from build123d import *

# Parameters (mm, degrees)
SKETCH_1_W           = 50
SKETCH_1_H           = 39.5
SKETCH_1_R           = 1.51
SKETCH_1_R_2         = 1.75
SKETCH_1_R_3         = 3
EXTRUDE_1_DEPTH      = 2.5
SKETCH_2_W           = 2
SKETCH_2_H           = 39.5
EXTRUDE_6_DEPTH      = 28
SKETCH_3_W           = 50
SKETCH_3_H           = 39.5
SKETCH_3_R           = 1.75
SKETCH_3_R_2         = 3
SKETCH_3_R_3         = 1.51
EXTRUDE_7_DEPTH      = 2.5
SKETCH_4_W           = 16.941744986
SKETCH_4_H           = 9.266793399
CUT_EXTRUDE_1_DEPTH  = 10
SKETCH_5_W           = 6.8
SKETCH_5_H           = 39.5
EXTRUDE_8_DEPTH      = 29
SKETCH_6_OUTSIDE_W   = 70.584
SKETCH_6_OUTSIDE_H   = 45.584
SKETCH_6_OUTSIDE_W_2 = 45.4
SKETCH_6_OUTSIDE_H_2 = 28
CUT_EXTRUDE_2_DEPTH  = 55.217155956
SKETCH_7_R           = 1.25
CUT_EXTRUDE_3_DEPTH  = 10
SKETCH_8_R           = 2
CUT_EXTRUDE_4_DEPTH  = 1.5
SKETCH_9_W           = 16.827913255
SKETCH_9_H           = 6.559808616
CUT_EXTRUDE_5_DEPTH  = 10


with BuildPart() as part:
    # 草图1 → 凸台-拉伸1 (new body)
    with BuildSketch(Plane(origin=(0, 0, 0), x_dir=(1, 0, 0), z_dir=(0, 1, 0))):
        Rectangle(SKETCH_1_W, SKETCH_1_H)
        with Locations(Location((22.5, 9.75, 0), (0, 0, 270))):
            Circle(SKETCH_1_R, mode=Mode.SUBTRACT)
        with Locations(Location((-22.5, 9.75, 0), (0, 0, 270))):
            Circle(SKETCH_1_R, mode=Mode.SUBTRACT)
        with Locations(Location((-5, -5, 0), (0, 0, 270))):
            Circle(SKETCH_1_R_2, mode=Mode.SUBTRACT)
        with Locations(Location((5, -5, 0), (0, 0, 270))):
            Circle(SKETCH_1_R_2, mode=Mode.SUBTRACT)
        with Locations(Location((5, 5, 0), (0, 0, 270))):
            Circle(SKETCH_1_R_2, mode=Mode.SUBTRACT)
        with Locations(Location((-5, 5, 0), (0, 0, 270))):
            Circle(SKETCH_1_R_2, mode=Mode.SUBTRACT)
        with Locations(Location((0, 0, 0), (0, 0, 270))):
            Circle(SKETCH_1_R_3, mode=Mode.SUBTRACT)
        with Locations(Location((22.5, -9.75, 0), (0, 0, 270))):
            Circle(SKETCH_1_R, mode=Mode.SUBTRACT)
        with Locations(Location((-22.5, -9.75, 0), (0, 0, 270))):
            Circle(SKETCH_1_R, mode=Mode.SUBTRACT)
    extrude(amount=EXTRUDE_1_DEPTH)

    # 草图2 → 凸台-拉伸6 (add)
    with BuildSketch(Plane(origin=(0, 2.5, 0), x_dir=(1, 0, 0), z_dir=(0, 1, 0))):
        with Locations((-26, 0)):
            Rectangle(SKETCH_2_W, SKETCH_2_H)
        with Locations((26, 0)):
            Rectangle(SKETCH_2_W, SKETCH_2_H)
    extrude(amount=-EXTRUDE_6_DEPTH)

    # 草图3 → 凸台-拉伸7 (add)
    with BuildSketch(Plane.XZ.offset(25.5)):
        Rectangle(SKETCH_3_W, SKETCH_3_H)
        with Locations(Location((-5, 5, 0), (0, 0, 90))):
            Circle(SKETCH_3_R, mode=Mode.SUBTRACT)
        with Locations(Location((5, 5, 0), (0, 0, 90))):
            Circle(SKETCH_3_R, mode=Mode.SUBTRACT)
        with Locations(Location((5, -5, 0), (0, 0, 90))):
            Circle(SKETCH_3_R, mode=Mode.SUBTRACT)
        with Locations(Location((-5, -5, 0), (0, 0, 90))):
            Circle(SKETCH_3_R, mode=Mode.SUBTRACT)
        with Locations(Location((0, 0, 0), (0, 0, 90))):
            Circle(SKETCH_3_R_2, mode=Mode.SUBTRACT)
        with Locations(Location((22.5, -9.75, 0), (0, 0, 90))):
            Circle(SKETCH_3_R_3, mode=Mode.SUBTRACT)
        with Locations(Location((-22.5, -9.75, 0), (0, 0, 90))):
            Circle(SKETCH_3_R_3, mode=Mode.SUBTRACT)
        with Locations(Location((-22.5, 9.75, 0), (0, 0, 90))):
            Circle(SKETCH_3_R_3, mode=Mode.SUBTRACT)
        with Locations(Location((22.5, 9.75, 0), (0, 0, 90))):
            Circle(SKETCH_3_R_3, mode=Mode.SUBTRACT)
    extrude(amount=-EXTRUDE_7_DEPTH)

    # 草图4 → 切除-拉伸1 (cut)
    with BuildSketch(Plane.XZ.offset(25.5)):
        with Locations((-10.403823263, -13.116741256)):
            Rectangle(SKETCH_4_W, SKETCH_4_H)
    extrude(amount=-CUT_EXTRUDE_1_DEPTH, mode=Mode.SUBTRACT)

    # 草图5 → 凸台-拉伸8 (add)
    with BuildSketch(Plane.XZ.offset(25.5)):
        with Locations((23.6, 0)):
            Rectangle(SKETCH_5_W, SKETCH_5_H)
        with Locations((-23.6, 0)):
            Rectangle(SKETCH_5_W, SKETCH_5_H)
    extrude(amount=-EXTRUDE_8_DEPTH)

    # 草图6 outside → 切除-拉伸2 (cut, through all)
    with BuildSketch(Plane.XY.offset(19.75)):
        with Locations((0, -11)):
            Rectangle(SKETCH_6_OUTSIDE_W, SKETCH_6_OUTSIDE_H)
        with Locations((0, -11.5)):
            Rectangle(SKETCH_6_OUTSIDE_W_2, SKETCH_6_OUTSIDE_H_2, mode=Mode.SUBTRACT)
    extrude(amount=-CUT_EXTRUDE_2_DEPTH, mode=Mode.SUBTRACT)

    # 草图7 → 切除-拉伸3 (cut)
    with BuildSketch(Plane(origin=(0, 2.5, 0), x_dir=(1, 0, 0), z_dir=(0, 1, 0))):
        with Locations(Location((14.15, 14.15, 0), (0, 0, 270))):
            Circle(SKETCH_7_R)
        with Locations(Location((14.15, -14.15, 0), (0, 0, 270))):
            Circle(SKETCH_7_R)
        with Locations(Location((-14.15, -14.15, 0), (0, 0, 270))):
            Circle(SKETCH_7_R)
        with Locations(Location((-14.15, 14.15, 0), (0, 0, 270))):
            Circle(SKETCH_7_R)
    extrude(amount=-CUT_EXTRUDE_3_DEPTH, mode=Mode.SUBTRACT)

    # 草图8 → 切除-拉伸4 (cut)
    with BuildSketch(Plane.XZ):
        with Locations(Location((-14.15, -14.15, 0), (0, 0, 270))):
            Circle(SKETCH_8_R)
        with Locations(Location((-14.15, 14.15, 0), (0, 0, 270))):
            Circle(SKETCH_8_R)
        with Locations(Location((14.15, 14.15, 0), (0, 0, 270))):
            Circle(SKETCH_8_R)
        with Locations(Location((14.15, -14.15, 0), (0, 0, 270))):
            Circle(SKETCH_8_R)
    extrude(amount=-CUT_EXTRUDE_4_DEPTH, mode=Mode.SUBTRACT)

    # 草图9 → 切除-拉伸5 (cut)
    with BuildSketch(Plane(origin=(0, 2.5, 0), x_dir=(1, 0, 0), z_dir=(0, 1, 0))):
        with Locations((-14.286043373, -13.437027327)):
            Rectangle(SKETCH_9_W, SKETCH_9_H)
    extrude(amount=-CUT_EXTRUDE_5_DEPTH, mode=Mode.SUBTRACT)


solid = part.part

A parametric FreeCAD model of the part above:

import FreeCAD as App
import Part
import Sketcher


def add_polygon(sketch, points):
    """Adds a closed chain of lines whose ends are joined by coincident constraints."""
    first, n = sketch.GeometryCount, len(points)
    for a, b in zip(points, points[1:] + points[:1]):
        sketch.addGeometry(Part.LineSegment(App.Vector(*a, 0), App.Vector(*b, 0)), False)
    for i in range(n):
        sketch.addConstraint(Sketcher.Constraint("Coincident", first + i, 2, first + (i + 1) % n, 1))

doc = App.newDocument("Part")
params = doc.addObject("Spreadsheet::Sheet", "Params")
for row, (alias, value) in enumerate([
    ("sketch1_diameter", "6 mm"),
    ("sketch1_diameter2", "3.5 mm"),
    ("sketch1_diameter3", "3.02 mm"),
    ("sketch1_width", "50 mm"),
    ("sketch1_height", "39.5 mm"),
    ("pad1_length", "2.5 mm"),
    ("sketch2_width", "2 mm"),
    ("sketch2_height", "39.5 mm"),
    ("pad2_length", "28 mm"),
    ("sketch3_diameter", "6 mm"),
    ("sketch3_diameter2", "3.5 mm"),
    ("sketch3_diameter3", "3.02 mm"),
    ("sketch3_width", "50 mm"),
    ("sketch3_height", "39.5 mm"),
    ("pad3_length", "2.5 mm"),
    ("pocket1_length", "10 mm"),
    ("sketch5_width", "6.8 mm"),
    ("sketch5_height", "39.5 mm"),
    ("pad4_length", "29 mm"),
    ("sketch6_height", "28 mm"),
    ("sketch6_width", "45.4 mm"),
    ("sketch7_diameter", "2.5 mm"),
    ("pocket3_length", "10 mm"),
    ("sketch8_diameter", "4 mm"),
    ("pocket4_length", "1.5 mm"),
    ("pocket5_length", "10 mm"),
], start=1):
    params.set(f"A{row}", alias)
    params.set(f"B{row}", "=" + value)
    params.setAlias(f"B{row}", alias)

body = doc.addObject("PartDesign::Body", "Body")

# Sketch on XZ plane
sketch1 = body.newObject("Sketcher::SketchObject", "Sketch")
sketch1.AttachmentSupport = (doc.getObject("XZ_Plane"), [""])
sketch1.MapMode = "FlatFace"
add_polygon(sketch1, [(-25, -19.75), (-25, 19.75), (25, 19.75), (25, -19.75)])  # lines 0-3
sketch1.addGeometry(Part.Circle(App.Vector(-22.5, 9.75, 0), App.Vector(0, 0, 1), 1.51), False)  # 4
sketch1.addGeometry(Part.Circle(App.Vector(-5, 5, 0), App.Vector(0, 0, 1), 1.75), False)  # 5
sketch1.addGeometry(Part.Circle(App.Vector(22.5, 9.75, 0), App.Vector(0, 0, 1), 1.51), False)  # 6
sketch1.addGeometry(Part.Circle(App.Vector(5, 5, 0), App.Vector(0, 0, 1), 1.75), False)  # 7
sketch1.addGeometry(Part.Circle(App.Vector(-5, -5, 0), App.Vector(0, 0, 1), 1.75), False)  # 8
sketch1.addGeometry(Part.Circle(App.Vector(-22.5, -9.75, 0), App.Vector(0, 0, 1), 1.51), False)  # 9
sketch1.addGeometry(Part.Circle(App.Vector(0, 0, 0), App.Vector(0, 0, 1), 3), False)  # 10
sketch1.addGeometry(Part.Circle(App.Vector(5, -5, 0), App.Vector(0, 0, 1), 1.75), False)  # 11
sketch1.addGeometry(Part.Circle(App.Vector(22.5, -9.75, 0), App.Vector(0, 0, 1), 1.51), False)  # 12
sketch1.addConstraint(Sketcher.Constraint("Vertical", 0))
sketch1.addConstraint(Sketcher.Constraint("Horizontal", 1))
sketch1.addConstraint(Sketcher.Constraint("Vertical", 2))
sketch1.addConstraint(Sketcher.Constraint("Horizontal", 3))
sketch1.addConstraint(Sketcher.Constraint("Coincident", 10, 3, -1, 1))
sketch1.addConstraint(Sketcher.Constraint("Equal", 4, 6))
sketch1.addConstraint(Sketcher.Constraint("Equal", 5, 7))
sketch1.addConstraint(Sketcher.Constraint("Equal", 7, 8))
sketch1.addConstraint(Sketcher.Constraint("Equal", 6, 9))
sketch1.addConstraint(Sketcher.Constraint("Equal", 8, 11))
sketch1.addConstraint(Sketcher.Constraint("Equal", 9, 12))
sketch1.addConstraint(Sketcher.Constraint("Symmetric", 7, 3, 8, 3, -1, 1))
sketch1.addConstraint(Sketcher.Constraint("Symmetric", 6, 3, 9, 3, -1, 1))
sketch1.addConstraint(Sketcher.Constraint("Symmetric", 5, 3, 11, 3, -1, 1))
sketch1.addConstraint(Sketcher.Constraint("Symmetric", 4, 3, 12, 3, -1, 1))
sketch1.addConstraint(Sketcher.Constraint("Symmetric", 0, 2, 2, 2, -1, 1))
sketch1.addConstraint(Sketcher.Constraint("Symmetric", 4, 3, 6, 3, -2))
sketch1.addConstraint(Sketcher.Constraint("Symmetric", 5, 3, 7, 3, -2))
sketch1.addConstraint(Sketcher.Constraint("Diameter", 10, 6.0))
sketch1.addConstraint(Sketcher.Constraint("Diameter", 5, 3.5))
sketch1.addConstraint(Sketcher.Constraint("Diameter", 4, 3.02))
sketch1.addConstraint(Sketcher.Constraint("DistanceX", 1, 1, 1, 2, 50.0))
sketch1.addConstraint(Sketcher.Constraint("DistanceY", 0, 1, 0, 2, 39.5))
sketch1.addConstraint(Sketcher.Constraint("DistanceX", 5, 3, -1, 1, 5.0))
sketch1.addConstraint(Sketcher.Constraint("DistanceY", -1, 1, 5, 3, 5.0))
sketch1.addConstraint(Sketcher.Constraint("DistanceX", 4, 3, 6, 3, 45.0))
sketch1.addConstraint(Sketcher.Constraint("DistanceY", 4, 3, 0, 2, 10.0))
sketch1.setExpression("Constraints[22]", "Params.sketch1_diameter")
sketch1.setExpression("Constraints[23]", "Params.sketch1_diameter2")
sketch1.setExpression("Constraints[24]", "Params.sketch1_diameter3")
sketch1.setExpression("Constraints[25]", "Params.sketch1_width")
sketch1.setExpression("Constraints[26]", "Params.sketch1_height")
pad1 = body.newObject("PartDesign::Pad", "Pad")
pad1.Profile = sketch1
pad1.setExpression("Length", "Params.pad1_length")
pad1.Reversed = True

# Sketch on XZ plane
sketch2 = body.newObject("Sketcher::SketchObject", "Sketch001")
sketch2.AttachmentSupport = (doc.getObject("XZ_Plane"), [""])
sketch2.MapMode = "FlatFace"
sketch2.AttachmentOffset = App.Placement(App.Vector(0, 0, -2.5), App.Rotation())
add_polygon(sketch2, [(-27, -19.75), (-27, 19.75), (-25, 19.75), (-25, -19.75)])  # lines 0-3
add_polygon(sketch2, [(25, -19.75), (25, 19.75), (27, 19.75), (27, -19.75)])  # lines 4-7
sketch2.addConstraint(Sketcher.Constraint("Vertical", 0))
sketch2.addConstraint(Sketcher.Constraint("Horizontal", 1))
sketch2.addConstraint(Sketcher.Constraint("Vertical", 2))
sketch2.addConstraint(Sketcher.Constraint("Horizontal", 3))
sketch2.addConstraint(Sketcher.Constraint("Vertical", 4))
sketch2.addConstraint(Sketcher.Constraint("Horizontal", 5))
sketch2.addConstraint(Sketcher.Constraint("Vertical", 6))
sketch2.addConstraint(Sketcher.Constraint("Horizontal", 7))
sketch2.addConstraint(Sketcher.Constraint("Symmetric", 2, 2, 4, 2, -1, 1))
sketch2.addConstraint(Sketcher.Constraint("Symmetric", 0, 2, 6, 2, -1, 1))
sketch2.addConstraint(Sketcher.Constraint("Horizontal", 1, 2, 4, 2))
sketch2.addConstraint(Sketcher.Constraint("DistanceX", 1, 1, 1, 2, 2.0))
sketch2.addConstraint(Sketcher.Constraint("DistanceY", 0, 1, 0, 2, 39.5))
sketch2.addConstraint(Sketcher.Constraint("DistanceX", 0, 2, -1, 1, 27.0))
sketch2.setExpression("Constraints[19]", "Params.sketch2_width")
sketch2.setExpression("Constraints[20]", "Params.sketch2_height")
pad2 = body.newObject("PartDesign::Pad", "Pad001")
pad2.Profile = sketch2
pad2.setExpression("Length", "Params.pad2_length")

# Sketch on XZ plane
sketch3 = body.newObject("Sketcher::SketchObject", "Sketch002")
sketch3.AttachmentSupport = (doc.getObject("XZ_Plane"), [""])
sketch3.MapMode = "FlatFace"
sketch3.AttachmentOffset = App.Placement(App.Vector(0, 0, 25.5), App.Rotation())
add_polygon(sketch3, [(-25, 19.75), (-25, -19.75), (25, -19.75), (25, 19.75)])  # lines 0-3
sketch3.addGeometry(Part.Circle(App.Vector(-22.5, -9.75, 0), App.Vector(0, 0, 1), 1.51), False)  # 4
sketch3.addGeometry(Part.Circle(App.Vector(-5, -5, 0), App.Vector(0, 0, 1), 1.75), False)  # 5
sketch3.addGeometry(Part.Circle(App.Vector(22.5, -9.75, 0), App.Vector(0, 0, 1), 1.51), False)  # 6
sketch3.addGeometry(Part.Circle(App.Vector(5, -5, 0), App.Vector(0, 0, 1), 1.75), False)  # 7
sketch3.addGeometry(Part.Circle(App.Vector(-5, 5, 0), App.Vector(0, 0, 1), 1.75), False)  # 8
sketch3.addGeometry(Part.Circle(App.Vector(-22.5, 9.75, 0), App.Vector(0, 0, 1), 1.51), False)  # 9
sketch3.addGeometry(Part.Circle(App.Vector(0, 0, 0), App.Vector(0, 0, 1), 3), False)  # 10
sketch3.addGeometry(Part.Circle(App.Vector(5, 5, 0), App.Vector(0, 0, 1), 1.75), False)  # 11
sketch3.addGeometry(Part.Circle(App.Vector(22.5, 9.75, 0), App.Vector(0, 0, 1), 1.51), False)  # 12
sketch3.addConstraint(Sketcher.Constraint("Vertical", 0))
sketch3.addConstraint(Sketcher.Constraint("Horizontal", 1))
sketch3.addConstraint(Sketcher.Constraint("Vertical", 2))
sketch3.addConstraint(Sketcher.Constraint("Horizontal", 3))
sketch3.addConstraint(Sketcher.Constraint("Coincident", 10, 3, -1, 1))
sketch3.addConstraint(Sketcher.Constraint("Equal", 4, 6))
sketch3.addConstraint(Sketcher.Constraint("Equal", 5, 7))
sketch3.addConstraint(Sketcher.Constraint("Equal", 7, 8))
sketch3.addConstraint(Sketcher.Constraint("Equal", 6, 9))
sketch3.addConstraint(Sketcher.Constraint("Equal", 8, 11))
sketch3.addConstraint(Sketcher.Constraint("Equal", 9, 12))
sketch3.addConstraint(Sketcher.Constraint("Symmetric", 7, 3, 8, 3, -1, 1))
sketch3.addConstraint(Sketcher.Constraint("Symmetric", 6, 3, 9, 3, -1, 1))
sketch3.addConstraint(Sketcher.Constraint("Symmetric", 5, 3, 11, 3, -1, 1))
sketch3.addConstraint(Sketcher.Constraint("Symmetric", 4, 3, 12, 3, -1, 1))
sketch3.addConstraint(Sketcher.Constraint("Symmetric", 0, 2, 2, 2, -1, 1))
sketch3.addConstraint(Sketcher.Constraint("Symmetric", 4, 3, 6, 3, -2))
sketch3.addConstraint(Sketcher.Constraint("Symmetric", 5, 3, 7, 3, -2))
sketch3.addConstraint(Sketcher.Constraint("Diameter", 10, 6.0))
sketch3.addConstraint(Sketcher.Constraint("Diameter", 5, 3.5))
sketch3.addConstraint(Sketcher.Constraint("Diameter", 4, 3.02))
sketch3.addConstraint(Sketcher.Constraint("DistanceX", 1, 1, 1, 2, 50.0))
sketch3.addConstraint(Sketcher.Constraint("DistanceY", 0, 2, 0, 1, 39.5))
sketch3.addConstraint(Sketcher.Constraint("DistanceX", 5, 3, -1, 1, 5.0))
sketch3.addConstraint(Sketcher.Constraint("DistanceY", 5, 3, -1, 1, 5.0))
sketch3.addConstraint(Sketcher.Constraint("DistanceX", 4, 3, 6, 3, 45.0))
sketch3.addConstraint(Sketcher.Constraint("DistanceY", 0, 2, 4, 3, 10.0))
sketch3.setExpression("Constraints[22]", "Params.sketch3_diameter")
sketch3.setExpression("Constraints[23]", "Params.sketch3_diameter2")
sketch3.setExpression("Constraints[24]", "Params.sketch3_diameter3")
sketch3.setExpression("Constraints[25]", "Params.sketch3_width")
sketch3.setExpression("Constraints[26]", "Params.sketch3_height")
pad3 = body.newObject("PartDesign::Pad", "Pad002")
pad3.Profile = sketch3
pad3.setExpression("Length", "Params.pad3_length")
pad3.Reversed = True

# Sketch on XZ plane
sketch4 = body.newObject("Sketcher::SketchObject", "Sketch003")
sketch4.AttachmentSupport = (doc.getObject("XZ_Plane"), [""])
sketch4.MapMode = "FlatFace"
sketch4.AttachmentOffset = App.Placement(App.Vector(0, 0, 25.5), App.Rotation())
add_polygon(sketch4, [(-18.874696, -8.483345), (-18.874696, -17.750138), (-1.932951, -17.750138), (-1.932951, -8.483345)])  # lines 0-3
sketch4.addConstraint(Sketcher.Constraint("Vertical", 0))
sketch4.addConstraint(Sketcher.Constraint("Horizontal", 1))
sketch4.addConstraint(Sketcher.Constraint("Vertical", 2))
sketch4.addConstraint(Sketcher.Constraint("Horizontal", 3))
sketch4.addConstraint(Sketcher.Constraint("DistanceX", 1, 1, 1, 2, 16.941745))
sketch4.addConstraint(Sketcher.Constraint("DistanceY", 0, 2, 0, 1, 9.266793))
sketch4.addConstraint(Sketcher.Constraint("DistanceX", 1, 2, -1, 1, 1.932951))
sketch4.addConstraint(Sketcher.Constraint("DistanceY", 0, 2, -1, 1, 17.750138))
pocket1 = body.newObject("PartDesign::Pocket", "Pocket")
pocket1.Profile = sketch4
pocket1.setExpression("Length", "Params.pocket1_length")

# Sketch on XZ plane
sketch5 = body.newObject("Sketcher::SketchObject", "Sketch004")
sketch5.AttachmentSupport = (doc.getObject("XZ_Plane"), [""])
sketch5.MapMode = "FlatFace"
sketch5.AttachmentOffset = App.Placement(App.Vector(0, 0, 25.5), App.Rotation())
add_polygon(sketch5, [(20.2, 19.75), (20.2, -19.75), (27, -19.75), (27, 19.75)])  # lines 0-3
add_polygon(sketch5, [(-27, 19.75), (-27, -19.75), (-20.2, -19.75), (-20.2, 19.75)])  # lines 4-7
sketch5.addConstraint(Sketcher.Constraint("Vertical", 0))
sketch5.addConstraint(Sketcher.Constraint("Horizontal", 1))
sketch5.addConstraint(Sketcher.Constraint("Vertical", 2))
sketch5.addConstraint(Sketcher.Constraint("Horizontal", 3))
sketch5.addConstraint(Sketcher.Constraint("Vertical", 4))
sketch5.addConstraint(Sketcher.Constraint("Horizontal", 5))
sketch5.addConstraint(Sketcher.Constraint("Vertical", 6))
sketch5.addConstraint(Sketcher.Constraint("Horizontal", 7))
sketch5.addConstraint(Sketcher.Constraint("Symmetric", 2, 2, 4, 2, -1, 1))
sketch5.addConstraint(Sketcher.Constraint("Symmetric", 0, 2, 6, 2, -1, 1))
sketch5.addConstraint(Sketcher.Constraint("Horizontal", 1, 2, 4, 2))
sketch5.addConstraint(Sketcher.Constraint("DistanceX", 1, 1, 1, 2, 6.8))
sketch5.addConstraint(Sketcher.Constraint("DistanceY", 0, 2, 0, 1, 39.5))
sketch5.addConstraint(Sketcher.Constraint("DistanceX", -1, 1, 1, 2, 27.0))
sketch5.setExpression("Constraints[19]", "Params.sketch5_width")
sketch5.setExpression("Constraints[20]", "Params.sketch5_height")
pad4 = body.newObject("PartDesign::Pad", "Pad003")
pad4.Profile = sketch5
pad4.setExpression("Length", "Params.pad4_length")
pad4.Reversed = True

# Sketch on XY plane
sketch6 = body.newObject("Sketcher::SketchObject", "Sketch005")
sketch6.AttachmentSupport = (doc.getObject("XY_Plane"), [""])
sketch6.MapMode = "FlatFace"
sketch6.AttachmentOffset = App.Placement(App.Vector(0, 0, 19.75), App.Rotation())
add_polygon(sketch6, [(-35.292, 11.792), (-35.292, -33.792), (35.292, -33.792), (35.292, 11.792)])  # lines 0-3
add_polygon(sketch6, [(22.7, -25.5), (-22.7, -25.5), (-22.7, 2.5), (22.7, 2.5)])  # lines 4-7
sketch6.addConstraint(Sketcher.Constraint("Vertical", 0))
sketch6.addConstraint(Sketcher.Constraint("Horizontal", 1))
sketch6.addConstraint(Sketcher.Constraint("Vertical", 2))
sketch6.addConstraint(Sketcher.Constraint("Horizontal", 3))
sketch6.addConstraint(Sketcher.Constraint("Horizontal", 4))
sketch6.addConstraint(Sketcher.Constraint("Vertical", 5))
sketch6.addConstraint(Sketcher.Constraint("Horizontal", 6))
sketch6.addConstraint(Sketcher.Constraint("Vertical", 7))
sketch6.addConstraint(Sketcher.Constraint("DistanceY", 5, 1, 5, 2, 28.0))
sketch6.addConstraint(Sketcher.Constraint("DistanceX", 4, 2, 4, 1, 45.4))
sketch6.addConstraint(Sketcher.Constraint("DistanceX", 4, 2, -1, 1, 22.7))
sketch6.addConstraint(Sketcher.Constraint("DistanceY", 4, 2, -1, 1, 25.5))
sketch6.addConstraint(Sketcher.Constraint("DistanceX", 1, 1, 1, 2, 70.584))
sketch6.addConstraint(Sketcher.Constraint("DistanceY", 0, 2, 0, 1, 45.584))
sketch6.addConstraint(Sketcher.Constraint("DistanceX", 0, 2, -1, 1, 35.292))
sketch6.addConstraint(Sketcher.Constraint("DistanceY", 0, 2, -1, 1, 33.792))
sketch6.setExpression("Constraints[16]", "Params.sketch6_height")
sketch6.setExpression("Constraints[17]", "Params.sketch6_width")
pocket2 = body.newObject("PartDesign::Pocket", "Pocket001")
pocket2.Profile = sketch6
pocket2.Type = "ThroughAll"

# Sketch on XZ plane
sketch7 = body.newObject("Sketcher::SketchObject", "Sketch006")
sketch7.AttachmentSupport = (doc.getObject("XZ_Plane"), [""])
sketch7.MapMode = "FlatFace"
sketch7.AttachmentOffset = App.Placement(App.Vector(0, 0, -2.5), App.Rotation())
sketch7.addGeometry(Part.Circle(App.Vector(14.15, -14.15, 0), App.Vector(0, 0, 1), 1.25), False)
sketch7.addGeometry(Part.Circle(App.Vector(14.15, 14.15, 0), App.Vector(0, 0, 1), 1.25), False)
sketch7.addGeometry(Part.Circle(App.Vector(-14.15, 14.15, 0), App.Vector(0, 0, 1), 1.25), False)
sketch7.addGeometry(Part.Circle(App.Vector(-14.15, -14.15, 0), App.Vector(0, 0, 1), 1.25), False)
sketch7.addConstraint(Sketcher.Constraint("Equal", 0, 1))
sketch7.addConstraint(Sketcher.Constraint("Equal", 1, 2))
sketch7.addConstraint(Sketcher.Constraint("Equal", 2, 3))
sketch7.addConstraint(Sketcher.Constraint("Symmetric", 0, 3, 2, 3, -1, 1))
sketch7.addConstraint(Sketcher.Constraint("Symmetric", 1, 3, 3, 3, -1, 1))
sketch7.addConstraint(Sketcher.Constraint("Symmetric", 1, 3, 2, 3, -2))
sketch7.addConstraint(Sketcher.Constraint("Diameter", 0, 2.5))
sketch7.addConstraint(Sketcher.Constraint("DistanceY", 0, 3, 1, 3, 28.3))
sketch7.addConstraint(Sketcher.Constraint("DistanceX", 2, 3, 1, 3, 28.3))
sketch7.setExpression("Constraints[6]", "Params.sketch7_diameter")
pocket3 = body.newObject("PartDesign::Pocket", "Pocket002")
pocket3.Profile = sketch7
pocket3.setExpression("Length", "Params.pocket3_length")
pocket3.Reversed = True

# Sketch on XZ plane
sketch8 = body.newObject("Sketcher::SketchObject", "Sketch007")
sketch8.AttachmentSupport = (doc.getObject("XZ_Plane"), [""])
sketch8.MapMode = "FlatFace"
sketch8.addGeometry(Part.Circle(App.Vector(-14.15, -14.15, 0), App.Vector(0, 0, 1), 2), False)
sketch8.addGeometry(Part.Circle(App.Vector(-14.15, 14.15, 0), App.Vector(0, 0, 1), 2), False)
sketch8.addGeometry(Part.Circle(App.Vector(14.15, 14.15, 0), App.Vector(0, 0, 1), 2), False)
sketch8.addGeometry(Part.Circle(App.Vector(14.15, -14.15, 0), App.Vector(0, 0, 1), 2), False)
sketch8.addConstraint(Sketcher.Constraint("Equal", 0, 1))
sketch8.addConstraint(Sketcher.Constraint("Equal", 1, 2))
sketch8.addConstraint(Sketcher.Constraint("Equal", 2, 3))
sketch8.addConstraint(Sketcher.Constraint("Symmetric", 0, 3, 2, 3, -1, 1))
sketch8.addConstraint(Sketcher.Constraint("Symmetric", 1, 3, 3, 3, -1, 1))
sketch8.addConstraint(Sketcher.Constraint("Symmetric", 1, 3, 2, 3, -2))
sketch8.addConstraint(Sketcher.Constraint("Diameter", 0, 4.0))
sketch8.addConstraint(Sketcher.Constraint("DistanceY", 0, 3, 1, 3, 28.3))
sketch8.addConstraint(Sketcher.Constraint("DistanceX", 1, 3, 2, 3, 28.3))
sketch8.setExpression("Constraints[6]", "Params.sketch8_diameter")
pocket4 = body.newObject("PartDesign::Pocket", "Pocket003")
pocket4.Profile = sketch8
pocket4.setExpression("Length", "Params.pocket4_length")

# Sketch on XZ plane
sketch9 = body.newObject("Sketcher::SketchObject", "Sketch008")
sketch9.AttachmentSupport = (doc.getObject("XZ_Plane"), [""])
sketch9.MapMode = "FlatFace"
sketch9.AttachmentOffset = App.Placement(App.Vector(0, 0, -2.5), App.Rotation())
add_polygon(sketch9, [(-22.7, 10.157123), (-22.7, 16.716932), (-5.872087, 16.716932), (-5.872087, 10.157123)])  # lines 0-3
sketch9.addConstraint(Sketcher.Constraint("Vertical", 0))
sketch9.addConstraint(Sketcher.Constraint("Horizontal", 1))
sketch9.addConstraint(Sketcher.Constraint("Vertical", 2))
sketch9.addConstraint(Sketcher.Constraint("Horizontal", 3))
sketch9.addConstraint(Sketcher.Constraint("DistanceX", 0, 2, -1, 1, 22.7))
sketch9.addConstraint(Sketcher.Constraint("DistanceY", 0, 1, 0, 2, 6.559809))
sketch9.addConstraint(Sketcher.Constraint("DistanceX", 1, 1, 1, 2, 16.827913))
sketch9.addConstraint(Sketcher.Constraint("DistanceY", -1, 1, 0, 2, 16.716932))
pocket5 = body.newObject("PartDesign::Pocket", "Pocket004")
pocket5.Profile = sketch9
pocket5.setExpression("Length", "Params.pocket5_length")
pocket5.Reversed = True

doc.recompute()
